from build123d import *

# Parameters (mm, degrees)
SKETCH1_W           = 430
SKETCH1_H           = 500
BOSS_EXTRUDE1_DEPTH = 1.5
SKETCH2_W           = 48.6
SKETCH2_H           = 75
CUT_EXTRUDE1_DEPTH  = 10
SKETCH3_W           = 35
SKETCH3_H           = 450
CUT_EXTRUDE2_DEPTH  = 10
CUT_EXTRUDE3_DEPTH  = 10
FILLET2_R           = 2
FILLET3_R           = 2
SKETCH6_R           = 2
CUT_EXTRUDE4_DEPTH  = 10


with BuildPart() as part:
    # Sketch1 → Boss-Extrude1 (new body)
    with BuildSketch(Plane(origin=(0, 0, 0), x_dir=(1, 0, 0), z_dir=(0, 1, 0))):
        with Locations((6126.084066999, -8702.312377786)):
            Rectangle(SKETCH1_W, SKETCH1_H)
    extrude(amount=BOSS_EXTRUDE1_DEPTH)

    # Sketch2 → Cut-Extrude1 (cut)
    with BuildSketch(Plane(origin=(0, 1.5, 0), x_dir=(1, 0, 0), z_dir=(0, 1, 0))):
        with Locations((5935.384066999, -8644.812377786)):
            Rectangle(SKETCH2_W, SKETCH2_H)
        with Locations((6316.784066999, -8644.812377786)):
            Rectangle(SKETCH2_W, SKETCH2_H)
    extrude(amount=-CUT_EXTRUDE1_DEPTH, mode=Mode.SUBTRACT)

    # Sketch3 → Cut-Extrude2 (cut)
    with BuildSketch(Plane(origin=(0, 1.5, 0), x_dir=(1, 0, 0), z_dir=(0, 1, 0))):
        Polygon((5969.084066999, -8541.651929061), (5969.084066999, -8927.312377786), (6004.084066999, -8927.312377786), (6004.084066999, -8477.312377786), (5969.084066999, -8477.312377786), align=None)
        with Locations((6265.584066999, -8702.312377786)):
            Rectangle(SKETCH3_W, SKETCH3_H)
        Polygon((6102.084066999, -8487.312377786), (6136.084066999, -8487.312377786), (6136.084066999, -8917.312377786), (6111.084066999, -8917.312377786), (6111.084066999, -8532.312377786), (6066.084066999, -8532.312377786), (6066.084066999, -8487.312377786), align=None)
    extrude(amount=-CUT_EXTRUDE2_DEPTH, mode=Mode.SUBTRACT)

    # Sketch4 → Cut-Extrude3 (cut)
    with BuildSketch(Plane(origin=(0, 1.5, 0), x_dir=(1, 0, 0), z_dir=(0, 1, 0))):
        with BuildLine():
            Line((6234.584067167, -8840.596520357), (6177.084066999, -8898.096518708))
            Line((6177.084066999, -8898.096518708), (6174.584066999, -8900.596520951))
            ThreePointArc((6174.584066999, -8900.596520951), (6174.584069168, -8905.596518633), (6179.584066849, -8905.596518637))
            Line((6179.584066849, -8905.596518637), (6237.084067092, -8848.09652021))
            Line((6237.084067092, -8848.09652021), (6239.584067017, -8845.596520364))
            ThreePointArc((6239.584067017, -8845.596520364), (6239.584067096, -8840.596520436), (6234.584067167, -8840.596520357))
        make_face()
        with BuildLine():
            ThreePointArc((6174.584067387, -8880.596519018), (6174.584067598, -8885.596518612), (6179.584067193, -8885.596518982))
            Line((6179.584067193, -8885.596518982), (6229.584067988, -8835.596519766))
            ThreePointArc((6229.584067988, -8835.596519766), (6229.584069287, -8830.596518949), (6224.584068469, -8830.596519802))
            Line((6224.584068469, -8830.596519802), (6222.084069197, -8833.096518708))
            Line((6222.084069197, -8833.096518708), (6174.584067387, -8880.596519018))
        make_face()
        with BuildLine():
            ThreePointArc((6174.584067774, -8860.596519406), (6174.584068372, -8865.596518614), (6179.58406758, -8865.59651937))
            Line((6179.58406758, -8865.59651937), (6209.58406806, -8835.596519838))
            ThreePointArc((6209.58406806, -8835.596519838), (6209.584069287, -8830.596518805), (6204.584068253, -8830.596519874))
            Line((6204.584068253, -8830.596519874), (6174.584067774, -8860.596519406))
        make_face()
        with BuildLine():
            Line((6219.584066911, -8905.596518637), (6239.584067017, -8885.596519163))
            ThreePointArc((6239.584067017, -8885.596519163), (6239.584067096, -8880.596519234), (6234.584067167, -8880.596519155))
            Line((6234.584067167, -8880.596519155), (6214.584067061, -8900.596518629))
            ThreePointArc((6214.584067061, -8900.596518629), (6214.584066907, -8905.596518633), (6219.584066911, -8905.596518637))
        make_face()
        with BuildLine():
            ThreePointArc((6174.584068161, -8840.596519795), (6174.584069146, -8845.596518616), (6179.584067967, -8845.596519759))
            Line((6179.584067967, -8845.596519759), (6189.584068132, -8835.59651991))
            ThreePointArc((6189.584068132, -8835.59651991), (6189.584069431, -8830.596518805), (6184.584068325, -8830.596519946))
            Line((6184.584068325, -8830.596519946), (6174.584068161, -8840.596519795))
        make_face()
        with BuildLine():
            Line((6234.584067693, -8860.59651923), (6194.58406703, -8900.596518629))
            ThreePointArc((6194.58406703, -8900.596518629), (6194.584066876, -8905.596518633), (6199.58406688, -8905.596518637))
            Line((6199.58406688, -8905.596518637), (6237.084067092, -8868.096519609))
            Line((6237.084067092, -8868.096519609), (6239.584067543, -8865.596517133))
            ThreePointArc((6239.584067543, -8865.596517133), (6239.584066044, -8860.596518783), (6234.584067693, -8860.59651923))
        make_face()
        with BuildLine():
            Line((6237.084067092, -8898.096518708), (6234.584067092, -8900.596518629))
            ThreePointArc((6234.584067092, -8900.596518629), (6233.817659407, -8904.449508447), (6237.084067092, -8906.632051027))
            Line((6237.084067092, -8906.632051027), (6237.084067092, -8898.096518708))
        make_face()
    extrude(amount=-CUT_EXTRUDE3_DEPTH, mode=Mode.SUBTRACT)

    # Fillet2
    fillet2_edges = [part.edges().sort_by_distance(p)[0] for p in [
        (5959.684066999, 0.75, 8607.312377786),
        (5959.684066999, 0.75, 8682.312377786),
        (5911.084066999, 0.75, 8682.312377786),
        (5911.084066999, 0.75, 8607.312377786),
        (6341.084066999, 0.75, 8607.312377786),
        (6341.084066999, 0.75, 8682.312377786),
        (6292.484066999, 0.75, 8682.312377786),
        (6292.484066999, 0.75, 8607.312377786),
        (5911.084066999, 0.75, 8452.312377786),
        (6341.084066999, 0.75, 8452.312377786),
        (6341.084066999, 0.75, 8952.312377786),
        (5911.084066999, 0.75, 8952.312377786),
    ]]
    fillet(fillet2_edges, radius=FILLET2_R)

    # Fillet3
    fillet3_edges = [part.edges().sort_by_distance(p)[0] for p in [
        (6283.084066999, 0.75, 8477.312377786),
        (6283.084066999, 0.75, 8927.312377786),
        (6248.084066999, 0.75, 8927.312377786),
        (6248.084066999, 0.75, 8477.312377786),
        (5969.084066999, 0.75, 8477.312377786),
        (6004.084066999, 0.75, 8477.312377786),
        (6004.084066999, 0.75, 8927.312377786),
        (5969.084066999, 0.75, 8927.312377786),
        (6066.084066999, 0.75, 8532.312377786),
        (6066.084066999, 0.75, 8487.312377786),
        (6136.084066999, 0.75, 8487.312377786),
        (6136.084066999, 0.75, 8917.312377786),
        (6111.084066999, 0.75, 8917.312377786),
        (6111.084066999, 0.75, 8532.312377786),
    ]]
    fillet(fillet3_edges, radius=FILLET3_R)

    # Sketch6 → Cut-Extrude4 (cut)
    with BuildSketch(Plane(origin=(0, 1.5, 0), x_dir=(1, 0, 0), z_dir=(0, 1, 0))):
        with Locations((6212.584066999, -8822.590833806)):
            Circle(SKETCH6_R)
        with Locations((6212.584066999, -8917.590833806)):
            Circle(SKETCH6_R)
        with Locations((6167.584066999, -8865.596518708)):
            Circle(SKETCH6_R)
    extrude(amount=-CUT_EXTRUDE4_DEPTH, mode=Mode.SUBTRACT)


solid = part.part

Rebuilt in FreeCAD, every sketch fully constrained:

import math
import FreeCAD as App
import Part
import Sketcher

V = App.Vector


def edges_at(feature, points):
    """Names of the edges that pass closest to the given points."""
    edges = feature.Shape.Edges
    near = lambda p: min(range(len(edges)), key=lambda i: edges[i].distToShape(Part.Vertex(*p))[0])
    return sorted({f"Edge{near(p) + 1}" for p in points})

doc = App.newDocument("Part")
body = doc.addObject("PartDesign::Body", "Body")

sketch1 = doc.addObject("Sketcher::SketchObject", "Sketch")
body.addObject(sketch1)
sketch1.AttachmentSupport = (doc.XZ_Plane, [""])
sketch1.MapMode = "FlatFace"
sketch1.addGeometry([
    Part.LineSegment(V(5911.084067, 8452.312378, 0), V(5911.084067, 8952.312378, 0)),
    Part.LineSegment(V(5911.084067, 8952.312378, 0), V(6341.084067, 8952.312378, 0)),
    Part.LineSegment(V(6341.084067, 8952.312378, 0), V(6341.084067, 8452.312378, 0)),
    Part.LineSegment(V(6341.084067, 8452.312378, 0), V(5911.084067, 8452.312378, 0)),
], False)
sketch1.addConstraint([
    Sketcher.Constraint("Coincident", 0, 2, 1, 1),
    Sketcher.Constraint("Coincident", 1, 2, 2, 1),
    Sketcher.Constraint("Coincident", 2, 2, 3, 1),
    Sketcher.Constraint("Coincident", 3, 2, 0, 1),
    Sketcher.Constraint("Vertical", 0),
    Sketcher.Constraint("Horizontal", 1),
    Sketcher.Constraint("Vertical", 2),
    Sketcher.Constraint("Horizontal", 3),
    Sketcher.Constraint("DistanceX", 1, 1, 1, 2, 430.0),
    Sketcher.Constraint("DistanceY", 0, 1, 0, 2, 500.0),
    Sketcher.Constraint("DistanceX", -1, 1, 0, 2, 5911.084067),
    Sketcher.Constraint("DistanceY", -1, 1, 0, 2, 8952.312378),
])
pad1 = doc.addObject("PartDesign::Pad", "Pad")
body.addObject(pad1)
pad1.Profile = sketch1
pad1.Length = 1.5
pad1.Reversed = True

sketch2 = doc.addObject("Sketcher::SketchObject", "Sketch001")
body.addObject(sketch2)
sketch2.AttachmentSupport = (doc.XZ_Plane, [""])
sketch2.MapMode = "FlatFace"
sketch2.AttachmentOffset = App.Placement(V(0, 0, -1.5), App.Rotation())
sketch2.addGeometry([
    Part.LineSegment(V(5911.084067, 8607.312378, 0), V(5911.084067, 8682.312378, 0)),
    Part.LineSegment(V(5911.084067, 8682.312378, 0), V(5959.684067, 8682.312378, 0)),
    Part.LineSegment(V(5959.684067, 8682.312378, 0), V(5959.684067, 8607.312378, 0)),
    Part.LineSegment(V(5959.684067, 8607.312378, 0), V(5911.084067, 8607.312378, 0)),
    Part.LineSegment(V(6292.484067, 8607.312378, 0), V(6292.484067, 8682.312378, 0)),
    Part.LineSegment(V(6292.484067, 8682.312378, 0), V(6341.084067, 8682.312378, 0)),
    Part.LineSegment(V(6341.084067, 8682.312378, 0), V(6341.084067, 8607.312378, 0)),
    Part.LineSegment(V(6341.084067, 8607.312378, 0), V(6292.484067, 8607.312378, 0)),
], False)
sketch2.addConstraint([
    Sketcher.Constraint("Coincident", 0, 2, 1, 1),
    Sketcher.Constraint("Coincident", 1, 2, 2, 1),
    Sketcher.Constraint("Coincident", 2, 2, 3, 1),
    Sketcher.Constraint("Coincident", 3, 2, 0, 1),
    Sketcher.Constraint("Coincident", 4, 2, 5, 1),
    Sketcher.Constraint("Coincident", 5, 2, 6, 1),
    Sketcher.Constraint("Coincident", 6, 2, 7, 1),
    Sketcher.Constraint("Coincident", 7, 2, 4, 1),
    Sketcher.Constraint("Vertical", 0),
    Sketcher.Constraint("Horizontal", 1),
    Sketcher.Constraint("Vertical", 2),
    Sketcher.Constraint("Horizontal", 3),
    Sketcher.Constraint("Vertical", 4),
    Sketcher.Constraint("Horizontal", 5),
    Sketcher.Constraint("Vertical", 6),
    Sketcher.Constraint("Horizontal", 7),
    Sketcher.Constraint("Horizontal", 1, 2, 4, 2),
    Sketcher.Constraint("Horizontal", 3, 2, 6, 2),
    Sketcher.Constraint("Equal", 3, 5),
    Sketcher.Constraint("DistanceY", 0, 1, 0, 2, 75.0),
    Sketcher.Constraint("DistanceX", 1, 1, 1, 2, 48.6),
    Sketcher.Constraint("DistanceX", 0, 2, 5, 2, 430.0),
    Sketcher.Constraint("DistanceX", -1, 1, 0, 2, 5911.084067),
    Sketcher.Constraint("DistanceY", -1, 1, 0, 2, 8682.312378),
])
pocket1 = doc.addObject("PartDesign::Pocket", "Pocket")
body.addObject(pocket1)
pocket1.Profile = sketch2
pocket1.Length = 10
pocket1.Reversed = True

sketch3 = doc.addObject("Sketcher::SketchObject", "Sketch002")
body.addObject(sketch3)
sketch3.AttachmentSupport = (doc.XZ_Plane, [""])
sketch3.MapMode = "FlatFace"
sketch3.AttachmentOffset = App.Placement(V(0, 0, -1.5), App.Rotation())
sketch3.addGeometry([
    Part.LineSegment(V(5969.084067, 8927.312378, 0), V(6004.084067, 8927.312378, 0)),
    Part.LineSegment(V(6004.084067, 8927.312378, 0), V(6004.084067, 8477.312378, 0)),
    Part.LineSegment(V(6004.084067, 8477.312378, 0), V(5969.084067, 8477.312378, 0)),
    Part.LineSegment(V(5969.084067, 8477.312378, 0), V(5969.084067, 8927.312378, 0)),
    Part.LineSegment(V(6248.084067, 8477.312378, 0), V(6248.084067, 8927.312378, 0)),
    Part.LineSegment(V(6248.084067, 8927.312378, 0), V(6283.084067, 8927.312378, 0)),
    Part.LineSegment(V(6283.084067, 8927.312378, 0), V(6283.084067, 8477.312378, 0)),
    Part.LineSegment(V(6283.084067, 8477.312378, 0), V(6248.084067, 8477.312378, 0)),
    Part.LineSegment(V(6136.084067, 8487.312378, 0), V(6066.084067, 8487.312378, 0)),
    Part.LineSegment(V(6066.084067, 8487.312378, 0), V(6066.084067, 8532.312378, 0)),
    Part.LineSegment(V(6066.084067, 8532.312378, 0), V(6111.084067, 8532.312378, 0)),
    Part.LineSegment(V(6111.084067, 8532.312378, 0), V(6111.084067, 8917.312378, 0)),
    Part.LineSegment(V(6111.084067, 8917.312378, 0), V(6136.084067, 8917.312378, 0)),
    Part.LineSegment(V(6136.084067, 8917.312378, 0), V(6136.084067, 8487.312378, 0)),
], False)
sketch3.addConstraint([
    Sketcher.Constraint("Coincident", 0, 2, 1, 1),
    Sketcher.Constraint("Coincident", 1, 2, 2, 1),
    Sketcher.Constraint("Coincident", 2, 2, 3, 1),
    Sketcher.Constraint("Coincident", 3, 2, 0, 1),
    Sketcher.Constraint("Coincident", 4, 2, 5, 1),
    Sketcher.Constraint("Coincident", 5, 2, 6, 1),
    Sketcher.Constraint("Coincident", 6, 2, 7, 1),
    Sketcher.Constraint("Coincident", 7, 2, 4, 1),
    Sketcher.Constraint("Coincident", 8, 2, 9, 1),
    Sketcher.Constraint("Coincident", 9, 2, 10, 1),
    Sketcher.Constraint("Coincident", 10, 2, 11, 1),
    Sketcher.Constraint("Coincident", 11, 2, 12, 1),
    Sketcher.Constraint("Coincident", 12, 2, 13, 1),
    Sketcher.Constraint("Coincident", 13, 2, 8, 1),
    Sketcher.Constraint("Horizontal", 0),
    Sketcher.Constraint("Vertical", 1),
    Sketcher.Constraint("Horizontal", 2),
    Sketcher.Constraint("Vertical", 3),
    Sketcher.Constraint("Vertical", 4),
    Sketcher.Constraint("Horizontal", 5),
    Sketcher.Constraint("Vertical", 6),
    Sketcher.Constraint("Horizontal", 7),
    Sketcher.Constraint("Horizontal", 8),
    Sketcher.Constraint("Vertical", 9),
    Sketcher.Constraint("Horizontal", 10),
    Sketcher.Constraint("Vertical", 11),
    Sketcher.Constraint("Horizontal", 12),
    Sketcher.Constraint("Vertical", 13),
    Sketcher.Constraint("Horizontal", 3, 2, 4, 2),
    Sketcher.Constraint("Horizontal", 2, 2, 6, 2),
    Sketcher.Constraint("Equal", 2, 5),
    Sketcher.Constraint("Equal", 10, 9),
    Sketcher.Constraint("DistanceX", 0, 1, 0, 2, 35.0),
    Sketcher.Constraint("DistanceX", 8, 2, 8, 1, 70.0),
    Sketcher.Constraint("DistanceX", 10, 1, 10, 2, 45.0),
    Sketcher.Constraint("DistanceY", 1, 2, 1, 1, 450.0),
    Sketcher.Constraint("DistanceY", 11, 1, 11, 2, 385.0),
    Sketcher.Constraint("DistanceX", 0, 2, 4, 2, 244.0),
    Sketcher.Constraint("DistanceX", 1, 2, 8, 2, 62.0),
    Sketcher.Constraint("DistanceY", 1, 2, 8, 2, 10.0),
    Sketcher.Constraint("DistanceX", -1, 1, 0, 2, 6004.084067),
    Sketcher.Constraint("DistanceY", -1, 1, 0, 2, 8927.312378),
])
pocket2 = doc.addObject("PartDesign::Pocket", "Pocket001")
body.addObject(pocket2)
pocket2.Profile = sketch3
pocket2.Length = 10
pocket2.Reversed = True

sketch4 = doc.addObject("Sketcher::SketchObject", "Sketch003")
body.addObject(sketch4)
sketch4.AttachmentSupport = (doc.XZ_Plane, [""])
sketch4.MapMode = "FlatFace"
sketch4.AttachmentOffset = App.Placement(V(0, 0, -1.5), App.Rotation())
sketch4.addGeometry([
    Part.LineSegment(V(6234.584067, 8840.59652, 0), V(6177.084067, 8898.096519, 0)),
    Part.LineSegment(V(6177.084067, 8898.096519, 0), V(6174.584067, 8900.596521, 0)),
    Part.ArcOfCircle(Part.Circle(V(6177.084068, 8903.096519, 0), V(0, 0, 1), 3.535533), math.radians(45.000013), math.radians(224.999963)),
    Part.LineSegment(V(6179.584067, 8905.596519, 0), V(6237.084067, 8848.09652, 0)),
    Part.LineSegment(V(6237.084067, 8848.09652, 0), V(6239.584067, 8845.59652, 0)),
    Part.ArcOfCircle(Part.Circle(V(6237.084067, 8843.09652, 0), V(0, 0, 1), 3.535534), math.radians(-134.999999), math.radians(45.000001)),
    Part.ArcOfCircle(Part.Circle(V(6177.084068, 8883.096519, 0), V(0, 0, 1), 3.535534), math.radians(45.000008), math.radians(224.999994)),
    Part.LineSegment(V(6179.584067, 8885.596519, 0), V(6229.584068, 8835.59652, 0)),
    Part.ArcOfCircle(Part.Circle(V(6227.084069, 8833.096519, 0), V(0, 0, 1), 3.535534), math.radians(-135.000022), math.radians(45.000027)),
    Part.LineSegment(V(6224.584068, 8830.59652, 0), V(6222.084069, 8833.096519, 0)),
    Part.LineSegment(V(6222.084069, 8833.096519, 0), V(6174.584067, 8880.596519, 0)),
    Part.ArcOfCircle(Part.Circle(V(6177.084068, 8863.096519, 0), V(0, 0, 1), 3.535534), math.radians(45.000016), math.radians(224.999985)),
    Part.LineSegment(V(6179.584068, 8865.596519, 0), V(6209.584068, 8835.59652, 0)),
    Part.ArcOfCircle(Part.Circle(V(6207.084069, 8833.096519, 0), V(0, 0, 1), 3.535534), math.radians(-135.000025), math.radians(45.000027)),
    Part.LineSegment(V(6204.584068, 8830.59652, 0), V(6174.584068, 8860.596519, 0)),
    Part.LineSegment(V(6219.584067, 8905.596519, 0), V(6239.584067, 8885.596519, 0)),
    Part.ArcOfCircle(Part.Circle(V(6237.084067, 8883.096519, 0), V(0, 0, 1), 3.535534), math.radians(-134.999999), math.radians(45.000001)),
    Part.LineSegment(V(6234.584067, 8880.596519, 0), V(6214.584067, 8900.596519, 0)),
    Part.ArcOfCircle(Part.Circle(V(6217.084067, 8903.096519, 0), V(0, 0, 1), 3.535534), math.radians(44.999999), math.radians(225.000003)),
    Part.ArcOfCircle(Part.Circle(V(6177.084069, 8843.096519, 0), V(0, 0, 1), 3.535534), math.radians(45.000025), math.radians(224.999977)),
    Part.LineSegment(V(6179.584068, 8845.59652, 0), V(6189.584068, 8835.59652, 0)),
    Part.ArcOfCircle(Part.Circle(V(6187.084069, 8833.096519, 0), V(0, 0, 1), 3.535534), math.radians(-135.000027), math.radians(45.000029)),
    Part.LineSegment(V(6184.584068, 8830.59652, 0), V(6174.584068, 8840.59652, 0)),
    Part.LineSegment(V(6234.584068, 8860.596519, 0), V(6194.584067, 8900.596519, 0)),
    Part.ArcOfCircle(Part.Circle(V(6197.084067, 8903.096519, 0), V(0, 0, 1), 3.535534), math.radians(44.999999), math.radians(225.000003)),
    Part.LineSegment(V(6199.584067, 8905.596519, 0), V(6237.084067, 8868.09652, 0)),
    Part.LineSegment(V(6237.084067, 8868.09652, 0), V(6239.584068, 8865.596517, 0)),
    Part.ArcOfCircle(Part.Circle(V(6237.084067, 8863.096519, 0), V(0, 0, 1), 3.535533), math.radians(-134.999999), math.radians(44.999977)),
    Part.LineSegment(V(6237.084067, 8898.096519, 0), V(6234.584067, 8900.596519, 0)),
    Part.ArcOfCircle(Part.Circle(V(6237.084066, 8903.096518, 0), V(0, 0, 1), 3.535533), math.radians(89.999975), math.radians(225.000015)),
    Part.LineSegment(V(6237.084067, 8906.632051, 0), V(6237.084067, 8898.096519, 0)),
], False)
sketch4.addConstraint([
    Sketcher.Constraint("Coincident", 0, 2, 1, 1),
    Sketcher.Constraint("Tangent", 1, 2, 2, 2),
    Sketcher.Constraint("Tangent", 2, 1, 3, 1),
    Sketcher.Constraint("Coincident", 3, 2, 4, 1),
    Sketcher.Constraint("Tangent", 4, 2, 5, 2),
    Sketcher.Constraint("Tangent", 5, 1, 0, 1),
    Sketcher.Constraint("Tangent", 6, 1, 7, 1),
    Sketcher.Constraint("Tangent", 7, 2, 8, 2),
    Sketcher.Constraint("Tangent", 8, 1, 9, 1),
    Sketcher.Constraint("Coincident", 9, 2, 10, 1),
    Sketcher.Constraint("Tangent", 10, 2, 6, 2),
    Sketcher.Constraint("Tangent", 11, 1, 12, 1),
    Sketcher.Constraint("Tangent", 12, 2, 13, 2),
    Sketcher.Constraint("Tangent", 13, 1, 14, 1),
    Sketcher.Constraint("Tangent", 14, 2, 11, 2),
    Sketcher.Constraint("Tangent", 15, 2, 16, 2),
    Sketcher.Constraint("Tangent", 16, 1, 17, 1),
    Sketcher.Constraint("Tangent", 17, 2, 18, 2),
    Sketcher.Constraint("Tangent", 18, 1, 15, 1),
    Sketcher.Constraint("Tangent", 19, 1, 20, 1),
    Sketcher.Constraint("Tangent", 20, 2, 21, 2),
    Sketcher.Constraint("Tangent", 21, 1, 22, 1),
    Sketcher.Constraint("Tangent", 22, 2, 19, 2),
    Sketcher.Constraint("Tangent", 23, 2, 24, 2),
    Sketcher.Constraint("Tangent", 24, 1, 25, 1),
    Sketcher.Constraint("Coincident", 25, 2, 26, 1),
    Sketcher.Constraint("Tangent", 26, 2, 27, 2),
    Sketcher.Constraint("Tangent", 27, 1, 23, 1),
    Sketcher.Constraint("Tangent", 28, 2, 29, 2),
    Sketcher.Constraint("Coincident", 29, 1, 30, 1),
    Sketcher.Constraint("Coincident", 30, 2, 28, 1),
    Sketcher.Constraint("Vertical", 30),
    Sketcher.Constraint("Equal", 2, 5),
    Sketcher.Constraint("Equal", 5, 6),
    Sketcher.Constraint("Equal", 6, 8),
    Sketcher.Constraint("Equal", 8, 11),
    Sketcher.Constraint("Equal", 11, 13),
    Sketcher.Constraint("Equal", 13, 16),
    Sketcher.Constraint("Equal", 16, 18),
    Sketcher.Constraint("Equal", 18, 19),
    Sketcher.Constraint("Equal", 19, 21),
    Sketcher.Constraint("Equal", 21, 24),
    Sketcher.Constraint("Equal", 24, 27),
    Sketcher.Constraint("Equal", 27, 29),
    Sketcher.Constraint("Parallel", 0, 1),
    Sketcher.Constraint("Parallel", 1, 3),
    Sketcher.Constraint("Parallel", 4, 7),
    Sketcher.Constraint("Parallel", 7, 9),
    Sketcher.Constraint("Parallel", 10, 12),
    Sketcher.Constraint("Parallel", 14, 15),
    Sketcher.Constraint("Parallel", 17, 20),
    Sketcher.Constraint("Parallel", 22, 23),
    Sketcher.Constraint("Parallel", 23, 25),
    Sketcher.Constraint("Parallel", 26, 28),
    Sketcher.Constraint("Horizontal", 8, 3, 13, 3),
    Sketcher.Constraint("Horizontal", 6, 3, 16, 3),
    Sketcher.Constraint("Horizontal", 2, 3, 18, 3),
    Sketcher.Constraint("Horizontal", 5, 3, 19, 3),
    Sketcher.Constraint("Horizontal", 13, 3, 21, 3),
    Sketcher.Constraint("Horizontal", 18, 3, 24, 3),
    Sketcher.Constraint("Horizontal", 11, 3, 27, 3),
    Sketcher.Constraint("Horizontal", 24, 3, 29, 3),
    Sketcher.Constraint("Horizontal", 21, 3, 9, 2),
    Sketcher.Constraint("Horizontal", 0, 2, 30, 2),
    Sketcher.Constraint("Vertical", 2, 3, 6, 3),
    Sketcher.Constraint("Vertical", 6, 3, 11, 3),
    Sketcher.Constraint("Vertical", 5, 3, 16, 3),
    Sketcher.Constraint("Vertical", 11, 3, 19, 3),
    Sketcher.Constraint("Vertical", 16, 3, 27, 3),
    Sketcher.Constraint("Vertical", 27, 3, 29, 3),
    Sketcher.Constraint("Vertical", 11, 3, 0, 2),
    Sketcher.Constraint("Vertical", 29, 3, 3, 2),
    Sketcher.Constraint("Vertical", 3, 2, 25, 2),
    Sketcher.Constraint("Equal", 4, 9),
    Sketcher.Constraint("DistanceX", 2, 3, 5, 3, 59.999999),
    Sketcher.Constraint("DistanceY", 6, 3, 2, 3, 20.0),
    Sketcher.Constraint("DistanceY", 8, 3, 5, 3, 10.000002),
    Sketcher.Constraint("DistanceY", 11, 3, 6, 3, 20.0),
    Sketcher.Constraint("DistanceY", 0, 2, 2, 3, 5.0),
    Sketcher.Constraint("DistanceX", -1, 1, 2, 3, 6177.084068),
    Sketcher.Constraint("DistanceY", -1, 1, 2, 3, 8903.096519),
])
pocket3 = doc.addObject("PartDesign::Pocket", "Pocket002")
body.addObject(pocket3)
pocket3.Profile = sketch4
pocket3.Length = 10
pocket3.Reversed = True
doc.recompute()

fillet = doc.addObject("PartDesign::Fillet", "Fillet")
body.addObject(fillet)
fillet.Base = (pocket3, edges_at(pocket3, [
    (5959.684, 0.75, 8607.312),
    (5959.684, 0.75, 8682.312),
    (5911.084, 0.75, 8682.312),
    (5911.084, 0.75, 8607.312),
    (6341.084, 0.75, 8607.312),
    (6341.084, 0.75, 8682.312),
    (6292.484, 0.75, 8682.312),
    (6292.484, 0.75, 8607.312),
    (5911.084, 0.75, 8452.312),
    (6341.084, 0.75, 8452.312),
    (6341.084, 0.75, 8952.312),
    (5911.084, 0.75, 8952.312),
]))
fillet.Radius = 2
doc.recompute()

fillet2 = doc.addObject("PartDesign::Fillet", "Fillet001")
body.addObject(fillet2)
fillet2.Base = (fillet, edges_at(fillet, [
    (6283.084, 0.75, 8477.312),
    (6283.084, 0.75, 8927.312),
    (6248.084, 0.75, 8927.312),
    (6248.084, 0.75, 8477.312),
    (5969.084, 0.75, 8477.312),
    (6004.084, 0.75, 8477.312),
    (6004.084, 0.75, 8927.312),
    (5969.084, 0.75, 8927.312),
    (6066.084, 0.75, 8532.312),
    (6066.084, 0.75, 8487.312),
    (6136.084, 0.75, 8487.312),
    (6136.084, 0.75, 8917.312),
    (6111.084, 0.75, 8917.312),
    (6111.084, 0.75, 8532.312),
]))
fillet2.Radius = 2

sketch5 = doc.addObject("Sketcher::SketchObject", "Sketch004")
body.addObject(sketch5)
sketch5.AttachmentSupport = (doc.XZ_Plane, [""])
sketch5.MapMode = "FlatFace"
sketch5.AttachmentOffset = App.Placement(V(0, 0, -1.5), App.Rotation())
sketch5.addGeometry([
    Part.Circle(V(6212.584067, 8822.590834, 0), V(0, 0, 1), 2),
    Part.Circle(V(6212.584067, 8917.590834, 0), V(0, 0, 1), 2),
    Part.Circle(V(6167.584067, 8865.596519, 0), V(0, 0, 1), 2),
], False)
sketch5.addConstraint([
    Sketcher.Constraint("Equal", 0, 1),
    Sketcher.Constraint("Equal", 1, 2),
    Sketcher.Constraint("Vertical", 0, 3, 1, 3),
    Sketcher.Constraint("Diameter", 0, 4.0),
    Sketcher.Constraint("DistanceY", 0, 3, 1, 3, 95.0),
    Sketcher.Constraint("DistanceX", 2, 3, 0, 3, 45.0),
    Sketcher.Constraint("DistanceY", -1, 1, 2, 3, 8865.596519),
    Sketcher.Constraint("DistanceX", -1, 1, 0, 3, 6212.584067),
    Sketcher.Constraint("DistanceY", -1, 1, 0, 3, 8822.590834),
])
pocket4 = doc.addObject("PartDesign::Pocket", "Pocket003")
body.addObject(pocket4)
pocket4.Profile = sketch5
pocket4.Length = 10
pocket4.Reversed = True

doc.recompute()
